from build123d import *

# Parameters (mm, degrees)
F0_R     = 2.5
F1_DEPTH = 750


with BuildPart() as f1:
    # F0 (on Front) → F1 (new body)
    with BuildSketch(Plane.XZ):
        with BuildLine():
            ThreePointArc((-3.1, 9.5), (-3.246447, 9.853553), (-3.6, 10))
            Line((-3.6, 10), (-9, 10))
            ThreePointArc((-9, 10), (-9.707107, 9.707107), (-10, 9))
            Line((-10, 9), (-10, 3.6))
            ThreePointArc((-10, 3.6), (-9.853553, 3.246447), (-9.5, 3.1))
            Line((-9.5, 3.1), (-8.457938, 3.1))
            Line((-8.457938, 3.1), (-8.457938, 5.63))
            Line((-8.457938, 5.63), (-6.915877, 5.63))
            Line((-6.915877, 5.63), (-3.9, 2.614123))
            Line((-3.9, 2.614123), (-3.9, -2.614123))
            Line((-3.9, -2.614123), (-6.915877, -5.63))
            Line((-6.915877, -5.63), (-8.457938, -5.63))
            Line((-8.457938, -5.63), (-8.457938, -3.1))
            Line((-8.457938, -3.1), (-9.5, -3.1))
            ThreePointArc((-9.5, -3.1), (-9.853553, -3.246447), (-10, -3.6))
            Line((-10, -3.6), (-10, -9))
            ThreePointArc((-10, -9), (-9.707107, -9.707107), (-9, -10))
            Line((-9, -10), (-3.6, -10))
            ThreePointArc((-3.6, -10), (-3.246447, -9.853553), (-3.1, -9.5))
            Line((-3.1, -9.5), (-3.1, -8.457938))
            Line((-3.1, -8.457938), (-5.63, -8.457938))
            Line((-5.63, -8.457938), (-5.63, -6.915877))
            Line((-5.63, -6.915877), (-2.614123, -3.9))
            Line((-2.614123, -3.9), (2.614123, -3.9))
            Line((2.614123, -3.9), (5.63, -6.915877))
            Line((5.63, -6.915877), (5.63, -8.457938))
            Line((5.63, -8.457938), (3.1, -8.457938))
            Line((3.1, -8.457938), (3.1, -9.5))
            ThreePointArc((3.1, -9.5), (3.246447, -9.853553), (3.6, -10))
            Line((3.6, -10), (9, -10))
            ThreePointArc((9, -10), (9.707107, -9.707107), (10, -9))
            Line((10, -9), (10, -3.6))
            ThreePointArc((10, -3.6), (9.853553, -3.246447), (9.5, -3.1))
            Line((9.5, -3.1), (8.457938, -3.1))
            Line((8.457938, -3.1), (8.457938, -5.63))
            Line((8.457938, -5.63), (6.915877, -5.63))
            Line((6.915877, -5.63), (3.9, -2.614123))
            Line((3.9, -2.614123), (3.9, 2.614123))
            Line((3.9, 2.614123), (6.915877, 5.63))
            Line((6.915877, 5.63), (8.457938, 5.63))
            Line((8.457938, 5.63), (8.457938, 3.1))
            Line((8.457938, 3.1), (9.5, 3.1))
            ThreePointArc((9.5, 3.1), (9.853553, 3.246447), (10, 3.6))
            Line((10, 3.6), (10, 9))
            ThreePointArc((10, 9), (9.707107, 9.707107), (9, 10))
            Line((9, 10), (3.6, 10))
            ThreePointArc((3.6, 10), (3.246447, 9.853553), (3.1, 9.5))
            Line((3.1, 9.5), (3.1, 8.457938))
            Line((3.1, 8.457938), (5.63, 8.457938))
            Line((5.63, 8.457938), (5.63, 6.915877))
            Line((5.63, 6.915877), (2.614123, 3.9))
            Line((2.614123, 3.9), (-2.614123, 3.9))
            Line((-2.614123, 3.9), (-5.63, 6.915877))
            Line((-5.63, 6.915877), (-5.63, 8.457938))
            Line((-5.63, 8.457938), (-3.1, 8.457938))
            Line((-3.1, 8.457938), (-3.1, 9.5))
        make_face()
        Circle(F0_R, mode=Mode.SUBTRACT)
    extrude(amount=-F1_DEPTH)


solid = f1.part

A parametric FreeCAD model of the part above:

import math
import FreeCAD as App
import Part
import Sketcher

doc = App.newDocument("Part")
body = doc.addObject("PartDesign::Body", "Body")

sketch1 = doc.addObject("Sketcher::SketchObject", "Sketch")
body.addObject(sketch1)
sketch1.AttachmentSupport = (doc.XZ_Plane, [""])
sketch1.MapMode = "FlatFace"
sketch1.addGeometry([
    Part.ArcOfCircle(Part.Circle(App.Vector(-3.6, 9.5, 0), App.Vector(0, 0, 1), 0.5), math.radians(0), math.radians(90)),
    Part.LineSegment(App.Vector(-3.6, 10, 0), App.Vector(-9, 10, 0)),
    Part.ArcOfCircle(Part.Circle(App.Vector(-9, 9, 0), App.Vector(0, 0, 1), 1), math.radians(90), math.radians(180)),
    Part.LineSegment(App.Vector(-10, 9, 0), App.Vector(-10, 3.6, 0)),
    Part.ArcOfCircle(Part.Circle(App.Vector(-9.5, 3.6, 0), App.Vector(0, 0, 1), 0.5), math.radians(-180), math.radians(-90)),
    Part.LineSegment(App.Vector(-9.5, 3.1, 0), App.Vector(-8.5, 3.1, 0)),
    Part.LineSegment(App.Vector(-8.5, 3.1, 0), App.Vector(-8.5, 5.6, 0)),
    Part.LineSegment(App.Vector(-8.5, 5.6, 0), App.Vector(-6.9, 5.6, 0)),
    Part.LineSegment(App.Vector(-6.9, 5.6, 0), App.Vector(-3.9, 2.6, 0)),
    Part.LineSegment(App.Vector(-3.9, 2.6, 0), App.Vector(-3.9, -2.6, 0)),
    Part.LineSegment(App.Vector(-3.9, -2.6, 0), App.Vector(-6.9, -5.6, 0)),
    Part.LineSegment(App.Vector(-6.9, -5.6, 0), App.Vector(-8.5, -5.6, 0)),
    Part.LineSegment(App.Vector(-8.5, -5.6, 0), App.Vector(-8.5, -3.1, 0)),
    Part.LineSegment(App.Vector(-8.5, -3.1, 0), App.Vector(-9.5, -3.1, 0)),
    Part.ArcOfCircle(Part.Circle(App.Vector(-9.5, -3.6, 0), App.Vector(0, 0, 1), 0.5), math.radians(90), math.radians(180)),
    Part.LineSegment(App.Vector(-10, -3.6, 0), App.Vector(-10, -9, 0)),
    Part.ArcOfCircle(Part.Circle(App.Vector(-9, -9, 0), App.Vector(0, 0, 1), 1), math.radians(180), math.radians(270)),
    Part.LineSegment(App.Vector(-9, -10, 0), App.Vector(-3.6, -10, 0)),
    Part.ArcOfCircle(Part.Circle(App.Vector(-3.6, -9.5, 0), App.Vector(0, 0, 1), 0.5), math.radians(-90), math.radians(0)),
    Part.LineSegment(App.Vector(-3.1, -9.5, 0), App.Vector(-3.1, -8.5, 0)),
    Part.LineSegment(App.Vector(-3.1, -8.5, 0), App.Vector(-5.6, -8.5, 0)),
    Part.LineSegment(App.Vector(-5.6, -8.5, 0), App.Vector(-5.6, -6.9, 0)),
    Part.LineSegment(App.Vector(-5.6, -6.9, 0), App.Vector(-2.6, -3.9, 0)),
    Part.LineSegment(App.Vector(-2.6, -3.9, 0), App.Vector(2.6, -3.9, 0)),
    Part.LineSegment(App.Vector(2.6, -3.9, 0), App.Vector(5.6, -6.9, 0)),
    Part.LineSegment(App.Vector(5.6, -6.9, 0), App.Vector(5.6, -8.5, 0)),
    Part.LineSegment(App.Vector(5.6, -8.5, 0), App.Vector(3.1, -8.5, 0)),
    Part.LineSegment(App.Vector(3.1, -8.5, 0), App.Vector(3.1, -9.5, 0)),
    Part.ArcOfCircle(Part.Circle(App.Vector(3.6, -9.5, 0), App.Vector(0, 0, 1), 0.5), math.radians(-180), math.radians(-90)),
    Part.LineSegment(App.Vector(3.6, -10, 0), App.Vector(9, -10, 0)),
    Part.ArcOfCircle(Part.Circle(App.Vector(9, -9, 0), App.Vector(0, 0, 1), 1), math.radians(-90), math.radians(0)),
    Part.LineSegment(App.Vector(10, -9, 0), App.Vector(10, -3.6, 0)),
    Part.ArcOfCircle(Part.Circle(App.Vector(9.5, -3.6, 0), App.Vector(0, 0, 1), 0.5), math.radians(0), math.radians(90)),
    Part.LineSegment(App.Vector(9.5, -3.1, 0), App.Vector(8.5, -3.1, 0)),
    Part.LineSegment(App.Vector(8.5, -3.1, 0), App.Vector(8.5, -5.6, 0)),
    Part.LineSegment(App.Vector(8.5, -5.6, 0), App.Vector(6.9, -5.6, 0)),
    Part.LineSegment(App.Vector(6.9, -5.6, 0), App.Vector(3.9, -2.6, 0)),
    Part.LineSegment(App.Vector(3.9, -2.6, 0), App.Vector(3.9, 2.6, 0)),
    Part.LineSegment(App.Vector(3.9, 2.6, 0), App.Vector(6.9, 5.6, 0)),
    Part.LineSegment(App.Vector(6.9, 5.6, 0), App.Vector(8.5, 5.6, 0)),
    Part.LineSegment(App.Vector(8.5, 5.6, 0), App.Vector(8.5, 3.1, 0)),
    Part.LineSegment(App.Vector(8.5, 3.1, 0), App.Vector(9.5, 3.1, 0)),
    Part.ArcOfCircle(Part.Circle(App.Vector(9.5, 3.6, 0), App.Vector(0, 0, 1), 0.5), math.radians(-90), math.radians(0)),
    Part.LineSegment(App.Vector(10, 3.6, 0), App.Vector(10, 9, 0)),
    Part.ArcOfCircle(Part.Circle(App.Vector(9, 9, 0), App.Vector(0, 0, 1), 1), math.radians(0), math.radians(90)),
    Part.LineSegment(App.Vector(9, 10, 0), App.Vector(3.6, 10, 0)),
    Part.ArcOfCircle(Part.Circle(App.Vector(3.6, 9.5, 0), App.Vector(0, 0, 1), 0.5), math.radians(90), math.radians(180)),
    Part.LineSegment(App.Vector(3.1, 9.5, 0), App.Vector(3.1, 8.5, 0)),
    Part.LineSegment(App.Vector(3.1, 8.5, 0), App.Vector(5.6, 8.5, 0)),
    Part.LineSegment(App.Vector(5.6, 8.5, 0), App.Vector(5.6, 6.9, 0)),
    Part.LineSegment(App.Vector(5.6, 6.9, 0), App.Vector(2.6, 3.9, 0)),
    Part.LineSegment(App.Vector(2.6, 3.9, 0), App.Vector(-2.6, 3.9, 0)),
    Part.LineSegment(App.Vector(-2.6, 3.9, 0), App.Vector(-5.6, 6.9, 0)),
    Part.LineSegment(App.Vector(-5.6, 6.9, 0), App.Vector(-5.6, 8.5, 0)),
    Part.LineSegment(App.Vector(-5.6, 8.5, 0), App.Vector(-3.1, 8.5, 0)),
    Part.LineSegment(App.Vector(-3.1, 8.5, 0), App.Vector(-3.1, 9.5, 0)),
    Part.Circle(App.Vector(0, 0, 0), App.Vector(0, 0, 1), 2.5),
], False)
sketch1.addConstraint([
    Sketcher.Constraint("Coincident", 0, 2, 1, 1),
    Sketcher.Constraint("Tangent", 1, 2, 2, 1),
    Sketcher.Constraint("Tangent", 2, 2, 3, 1),
    Sketcher.Constraint("Coincident", 3, 2, 4, 1),
    Sketcher.Constraint("Coincident", 4, 2, 5, 1),
    Sketcher.Constraint("Coincident", 5, 2, 6, 1),
    Sketcher.Constraint("Coincident", 6, 2, 7, 1),
    Sketcher.Constraint("Coincident", 7, 2, 8, 1),
    Sketcher.Constraint("Coincident", 8, 2, 9, 1),
    Sketcher.Constraint("Coincident", 9, 2, 10, 1),
    Sketcher.Constraint("Coincident", 10, 2, 11, 1),
    Sketcher.Constraint("Coincident", 11, 2, 12, 1),
    Sketcher.Constraint("Coincident", 12, 2, 13, 1),
    Sketcher.Constraint("Coincident", 13, 2, 14, 1),
    Sketcher.Constraint("Coincident", 14, 2, 15, 1),
    Sketcher.Constraint("Tangent", 15, 2, 16, 1),
    Sketcher.Constraint("Tangent", 16, 2, 17, 1),
    Sketcher.Constraint("Coincident", 17, 2, 18, 1),
    Sketcher.Constraint("Coincident", 18, 2, 19, 1),
    Sketcher.Constraint("Coincident", 19, 2, 20, 1),
    Sketcher.Constraint("Coincident", 20, 2, 21, 1),
    Sketcher.Constraint("Coincident", 21, 2, 22, 1),
    Sketcher.Constraint("Coincident", 22, 2, 23, 1),
    Sketcher.Constraint("Coincident", 23, 2, 24, 1),
    Sketcher.Constraint("Coincident", 24, 2, 25, 1),
    Sketcher.Constraint("Coincident", 25, 2, 26, 1),
    Sketcher.Constraint("Coincident", 26, 2, 27, 1),
    Sketcher.Constraint("Coincident", 27, 2, 28, 1),
    Sketcher.Constraint("Coincident", 28, 2, 29, 1),
    Sketcher.Constraint("Tangent", 29, 2, 30, 1),
    Sketcher.Constraint("Tangent", 30, 2, 31, 1),
    Sketcher.Constraint("Coincident", 31, 2, 32, 1),
    Sketcher.Constraint("Coincident", 32, 2, 33, 1),
    Sketcher.Constraint("Coincident", 33, 2, 34, 1),
    Sketcher.Constraint("Coincident", 34, 2, 35, 1),
    Sketcher.Constraint("Coincident", 35, 2, 36, 1),
    Sketcher.Constraint("Coincident", 36, 2, 37, 1),
    Sketcher.Constraint("Coincident", 37, 2, 38, 1),
    Sketcher.Constraint("Coincident", 38, 2, 39, 1),
    Sketcher.Constraint("Coincident", 39, 2, 40, 1),
    Sketcher.Constraint("Coincident", 40, 2, 41, 1),
    Sketcher.Constraint("Coincident", 41, 2, 42, 1),
    Sketcher.Constraint("Coincident", 42, 2, 43, 1),
    Sketcher.Constraint("Tangent", 43, 2, 44, 1),
    Sketcher.Constraint("Tangent", 44, 2, 45, 1),
    Sketcher.Constraint("Coincident", 45, 2, 46, 1),
    Sketcher.Constraint("Coincident", 46, 2, 47, 1),
    Sketcher.Constraint("Coincident", 47, 2, 48, 1),
    Sketcher.Constraint("Coincident", 48, 2, 49, 1),
    Sketcher.Constraint("Coincident", 49, 2, 50, 1),
    Sketcher.Constraint("Coincident", 50, 2, 51, 1),
    Sketcher.Constraint("Coincident", 51, 2, 52, 1),
    Sketcher.Constraint("Coincident", 52, 2, 53, 1),
    Sketcher.Constraint("Coincident", 53, 2, 54, 1),
    Sketcher.Constraint("Coincident", 54, 2, 55, 1),
    Sketcher.Constraint("Coincident", 55, 2, 0, 1),
    Sketcher.Constraint("Horizontal", 1),
    Sketcher.Constraint("Vertical", 3),
    Sketcher.Constraint("Horizontal", 5),
    Sketcher.Constraint("Vertical", 6),
    Sketcher.Constraint("Horizontal", 7),
    Sketcher.Constraint("Vertical", 9),
    Sketcher.Constraint("Horizontal", 11),
    Sketcher.Constraint("Vertical", 12),
    Sketcher.Constraint("Horizontal", 13),
    Sketcher.Constraint("Vertical", 15),
    Sketcher.Constraint("Horizontal", 17),
    Sketcher.Constraint("Vertical", 19),
    Sketcher.Constraint("Horizontal", 20),
    Sketcher.Constraint("Vertical", 21),
    Sketcher.Constraint("Horizontal", 23),
    Sketcher.Constraint("Vertical", 25),
    Sketcher.Constraint("Horizontal", 26),
    Sketcher.Constraint("Vertical", 27),
    Sketcher.Constraint("Horizontal", 29),
    Sketcher.Constraint("Vertical", 31),
    Sketcher.Constraint("Horizontal", 33),
    Sketcher.Constraint("Vertical", 34),
    Sketcher.Constraint("Horizontal", 35),
    Sketcher.Constraint("Vertical", 37),
    Sketcher.Constraint("Horizontal", 39),
    Sketcher.Constraint("Vertical", 40),
    Sketcher.Constraint("Horizontal", 41),
    Sketcher.Constraint("Vertical", 43),
    Sketcher.Constraint("Horizontal", 45),
    Sketcher.Constraint("Vertical", 47),
    Sketcher.Constraint("Horizontal", 48),
    Sketcher.Constraint("Vertical", 49),
    Sketcher.Constraint("Horizontal", 51),
    Sketcher.Constraint("Vertical", 53),
    Sketcher.Constraint("Horizontal", 54),
    Sketcher.Constraint("Vertical", 55),
    Sketcher.Constraint("Coincident", 56, 3, -1, 1),
    Sketcher.Constraint("Equal", 0, 4),
    Sketcher.Constraint("Equal", 4, 14),
    Sketcher.Constraint("Equal", 2, 16),
    Sketcher.Constraint("Equal", 14, 18),
    Sketcher.Constraint("Equal", 18, 28),
    Sketcher.Constraint("Equal", 16, 30),
    Sketcher.Constraint("Equal", 28, 32),
    Sketcher.Constraint("Equal", 32, 42),
    Sketcher.Constraint("Equal", 30, 44),
    Sketcher.Constraint("Equal", 42, 46),
    Sketcher.Constraint("Symmetric", 0, 3, 28, 3, -1, 1),
    Sketcher.Constraint("Symmetric", 4, 3, 32, 3, -1, 1),
    Sketcher.Constraint("Symmetric", 14, 3, 42, 3, -1, 1),
    Sketcher.Constraint("Symmetric", 18, 3, 46, 3, -1, 1),
    Sketcher.Constraint("Symmetric", 6, 2, 34, 2, -1, 1),
    Sketcher.Constraint("Symmetric", 8, 2, 36, 2, -1, 1),
    Sketcher.Constraint("Symmetric", 10, 2, 38, 2, -1, 1),
    Sketcher.Constraint("Symmetric", 20, 2, 48, 2, -1, 1),
    Sketcher.Constraint("Symmetric", 22, 2, 50, 2, -1, 1),
    Sketcher.Constraint("Symmetric", 24, 2, 52, 2, -1, 1),
    Sketcher.Constraint("Symmetric", 18, 3, 28, 3, -2),
    Sketcher.Constraint("Symmetric", 14, 3, 32, 3, -2),
    Sketcher.Constraint("Symmetric", 21, 2, 24, 2, -2),
    Sketcher.Constraint("Symmetric", 11, 2, 34, 2, -2),
    Sketcher.Constraint("Perpendicular", 8, 10),
    Sketcher.Constraint("Parallel", 10, 22),
    Sketcher.Constraint("Perpendicular", 22, 24),
    Sketcher.Constraint("Parallel", 24, 36),
    Sketcher.Constraint("Perpendicular", 36, 38),
    Sketcher.Constraint("Parallel", 38, 50),
    Sketcher.Constraint("Perpendicular", 50, 52),
    Sketcher.Constraint("Horizontal", 42, 3, 3, 2),
    Sketcher.Constraint("Horizontal", 32, 3, 14, 2),
    Sketcher.Constraint("Horizontal", 28, 3, 18, 2),
    Sketcher.Constraint("Horizontal", 20, 2, 25, 2),
    Sketcher.Constraint("Horizontal", 18, 2, 27, 2),
    Sketcher.Constraint("Horizontal", 14, 2, 31, 2),
    Sketcher.Constraint("Horizontal", 9, 2, 36, 2),
    Sketcher.Constraint("Horizontal", 3, 2, 42, 2),
    Sketcher.Constraint("Horizontal", 0, 3, 46, 2),
    Sketcher.Constraint("Horizontal", 48, 2, 53, 2),
    Sketcher.Constraint("Horizontal", 46, 2, 55, 2),
    Sketcher.Constraint("Vertical", 18, 3, 0, 2),
    Sketcher.Constraint("Vertical", 14, 3, 4, 2),
    Sketcher.Constraint("Vertical", 7, 2, 10, 2),
    Sketcher.Constraint("Vertical", 4, 2, 13, 2),
    Sketcher.Constraint("Vertical", 0, 2, 17, 2),
    Sketcher.Constraint("Vertical", 46, 3, 28, 2),
    Sketcher.Constraint("Vertical", 42, 3, 32, 2),
    Sketcher.Constraint("Vertical", 34, 2, 39, 2),
    Sketcher.Constraint("Vertical", 32, 2, 41, 2),
    Sketcher.Constraint("Vertical", 28, 2, 45, 2),
    Sketcher.Constraint("Equal", 45, 3),
    Sketcher.Constraint("Equal", 54, 6),
    Sketcher.Constraint("Equal", 51, 9),
    Sketcher.Constraint("Equal", 41, 19),
    Sketcher.Constraint("Equal", 39, 21),
    Sketcher.Constraint("Equal", 10, 22),
    Sketcher.Constraint("Diameter", 56, 5.0),
    Sketcher.Constraint("Radius", 2, 0.999999),
    Sketcher.Constraint("Radius", 0, 0.500001),
    Sketcher.Constraint("DistanceX", 1, 2, 1, 1, 5.4),
    Sketcher.Constraint("DistanceX", 2, 3, -1, 1, 9.000001),
    Sketcher.Constraint("DistanceX", 20, 2, 20, 1, 2.53),
    Sketcher.Constraint("DistanceX", 8, 2, -1, 1, 3.9),
    Sketcher.Constraint("DistanceX", 5, 1, 5, 2, 1.042062),
    Sketcher.Constraint("DistanceX", 7, 1, 7, 2, 1.542061),
])
pad1 = doc.addObject("PartDesign::Pad", "Pad")
body.addObject(pad1)
pad1.Profile = sketch1
pad1.Length = 750
pad1.Reversed = True

doc.recompute()
